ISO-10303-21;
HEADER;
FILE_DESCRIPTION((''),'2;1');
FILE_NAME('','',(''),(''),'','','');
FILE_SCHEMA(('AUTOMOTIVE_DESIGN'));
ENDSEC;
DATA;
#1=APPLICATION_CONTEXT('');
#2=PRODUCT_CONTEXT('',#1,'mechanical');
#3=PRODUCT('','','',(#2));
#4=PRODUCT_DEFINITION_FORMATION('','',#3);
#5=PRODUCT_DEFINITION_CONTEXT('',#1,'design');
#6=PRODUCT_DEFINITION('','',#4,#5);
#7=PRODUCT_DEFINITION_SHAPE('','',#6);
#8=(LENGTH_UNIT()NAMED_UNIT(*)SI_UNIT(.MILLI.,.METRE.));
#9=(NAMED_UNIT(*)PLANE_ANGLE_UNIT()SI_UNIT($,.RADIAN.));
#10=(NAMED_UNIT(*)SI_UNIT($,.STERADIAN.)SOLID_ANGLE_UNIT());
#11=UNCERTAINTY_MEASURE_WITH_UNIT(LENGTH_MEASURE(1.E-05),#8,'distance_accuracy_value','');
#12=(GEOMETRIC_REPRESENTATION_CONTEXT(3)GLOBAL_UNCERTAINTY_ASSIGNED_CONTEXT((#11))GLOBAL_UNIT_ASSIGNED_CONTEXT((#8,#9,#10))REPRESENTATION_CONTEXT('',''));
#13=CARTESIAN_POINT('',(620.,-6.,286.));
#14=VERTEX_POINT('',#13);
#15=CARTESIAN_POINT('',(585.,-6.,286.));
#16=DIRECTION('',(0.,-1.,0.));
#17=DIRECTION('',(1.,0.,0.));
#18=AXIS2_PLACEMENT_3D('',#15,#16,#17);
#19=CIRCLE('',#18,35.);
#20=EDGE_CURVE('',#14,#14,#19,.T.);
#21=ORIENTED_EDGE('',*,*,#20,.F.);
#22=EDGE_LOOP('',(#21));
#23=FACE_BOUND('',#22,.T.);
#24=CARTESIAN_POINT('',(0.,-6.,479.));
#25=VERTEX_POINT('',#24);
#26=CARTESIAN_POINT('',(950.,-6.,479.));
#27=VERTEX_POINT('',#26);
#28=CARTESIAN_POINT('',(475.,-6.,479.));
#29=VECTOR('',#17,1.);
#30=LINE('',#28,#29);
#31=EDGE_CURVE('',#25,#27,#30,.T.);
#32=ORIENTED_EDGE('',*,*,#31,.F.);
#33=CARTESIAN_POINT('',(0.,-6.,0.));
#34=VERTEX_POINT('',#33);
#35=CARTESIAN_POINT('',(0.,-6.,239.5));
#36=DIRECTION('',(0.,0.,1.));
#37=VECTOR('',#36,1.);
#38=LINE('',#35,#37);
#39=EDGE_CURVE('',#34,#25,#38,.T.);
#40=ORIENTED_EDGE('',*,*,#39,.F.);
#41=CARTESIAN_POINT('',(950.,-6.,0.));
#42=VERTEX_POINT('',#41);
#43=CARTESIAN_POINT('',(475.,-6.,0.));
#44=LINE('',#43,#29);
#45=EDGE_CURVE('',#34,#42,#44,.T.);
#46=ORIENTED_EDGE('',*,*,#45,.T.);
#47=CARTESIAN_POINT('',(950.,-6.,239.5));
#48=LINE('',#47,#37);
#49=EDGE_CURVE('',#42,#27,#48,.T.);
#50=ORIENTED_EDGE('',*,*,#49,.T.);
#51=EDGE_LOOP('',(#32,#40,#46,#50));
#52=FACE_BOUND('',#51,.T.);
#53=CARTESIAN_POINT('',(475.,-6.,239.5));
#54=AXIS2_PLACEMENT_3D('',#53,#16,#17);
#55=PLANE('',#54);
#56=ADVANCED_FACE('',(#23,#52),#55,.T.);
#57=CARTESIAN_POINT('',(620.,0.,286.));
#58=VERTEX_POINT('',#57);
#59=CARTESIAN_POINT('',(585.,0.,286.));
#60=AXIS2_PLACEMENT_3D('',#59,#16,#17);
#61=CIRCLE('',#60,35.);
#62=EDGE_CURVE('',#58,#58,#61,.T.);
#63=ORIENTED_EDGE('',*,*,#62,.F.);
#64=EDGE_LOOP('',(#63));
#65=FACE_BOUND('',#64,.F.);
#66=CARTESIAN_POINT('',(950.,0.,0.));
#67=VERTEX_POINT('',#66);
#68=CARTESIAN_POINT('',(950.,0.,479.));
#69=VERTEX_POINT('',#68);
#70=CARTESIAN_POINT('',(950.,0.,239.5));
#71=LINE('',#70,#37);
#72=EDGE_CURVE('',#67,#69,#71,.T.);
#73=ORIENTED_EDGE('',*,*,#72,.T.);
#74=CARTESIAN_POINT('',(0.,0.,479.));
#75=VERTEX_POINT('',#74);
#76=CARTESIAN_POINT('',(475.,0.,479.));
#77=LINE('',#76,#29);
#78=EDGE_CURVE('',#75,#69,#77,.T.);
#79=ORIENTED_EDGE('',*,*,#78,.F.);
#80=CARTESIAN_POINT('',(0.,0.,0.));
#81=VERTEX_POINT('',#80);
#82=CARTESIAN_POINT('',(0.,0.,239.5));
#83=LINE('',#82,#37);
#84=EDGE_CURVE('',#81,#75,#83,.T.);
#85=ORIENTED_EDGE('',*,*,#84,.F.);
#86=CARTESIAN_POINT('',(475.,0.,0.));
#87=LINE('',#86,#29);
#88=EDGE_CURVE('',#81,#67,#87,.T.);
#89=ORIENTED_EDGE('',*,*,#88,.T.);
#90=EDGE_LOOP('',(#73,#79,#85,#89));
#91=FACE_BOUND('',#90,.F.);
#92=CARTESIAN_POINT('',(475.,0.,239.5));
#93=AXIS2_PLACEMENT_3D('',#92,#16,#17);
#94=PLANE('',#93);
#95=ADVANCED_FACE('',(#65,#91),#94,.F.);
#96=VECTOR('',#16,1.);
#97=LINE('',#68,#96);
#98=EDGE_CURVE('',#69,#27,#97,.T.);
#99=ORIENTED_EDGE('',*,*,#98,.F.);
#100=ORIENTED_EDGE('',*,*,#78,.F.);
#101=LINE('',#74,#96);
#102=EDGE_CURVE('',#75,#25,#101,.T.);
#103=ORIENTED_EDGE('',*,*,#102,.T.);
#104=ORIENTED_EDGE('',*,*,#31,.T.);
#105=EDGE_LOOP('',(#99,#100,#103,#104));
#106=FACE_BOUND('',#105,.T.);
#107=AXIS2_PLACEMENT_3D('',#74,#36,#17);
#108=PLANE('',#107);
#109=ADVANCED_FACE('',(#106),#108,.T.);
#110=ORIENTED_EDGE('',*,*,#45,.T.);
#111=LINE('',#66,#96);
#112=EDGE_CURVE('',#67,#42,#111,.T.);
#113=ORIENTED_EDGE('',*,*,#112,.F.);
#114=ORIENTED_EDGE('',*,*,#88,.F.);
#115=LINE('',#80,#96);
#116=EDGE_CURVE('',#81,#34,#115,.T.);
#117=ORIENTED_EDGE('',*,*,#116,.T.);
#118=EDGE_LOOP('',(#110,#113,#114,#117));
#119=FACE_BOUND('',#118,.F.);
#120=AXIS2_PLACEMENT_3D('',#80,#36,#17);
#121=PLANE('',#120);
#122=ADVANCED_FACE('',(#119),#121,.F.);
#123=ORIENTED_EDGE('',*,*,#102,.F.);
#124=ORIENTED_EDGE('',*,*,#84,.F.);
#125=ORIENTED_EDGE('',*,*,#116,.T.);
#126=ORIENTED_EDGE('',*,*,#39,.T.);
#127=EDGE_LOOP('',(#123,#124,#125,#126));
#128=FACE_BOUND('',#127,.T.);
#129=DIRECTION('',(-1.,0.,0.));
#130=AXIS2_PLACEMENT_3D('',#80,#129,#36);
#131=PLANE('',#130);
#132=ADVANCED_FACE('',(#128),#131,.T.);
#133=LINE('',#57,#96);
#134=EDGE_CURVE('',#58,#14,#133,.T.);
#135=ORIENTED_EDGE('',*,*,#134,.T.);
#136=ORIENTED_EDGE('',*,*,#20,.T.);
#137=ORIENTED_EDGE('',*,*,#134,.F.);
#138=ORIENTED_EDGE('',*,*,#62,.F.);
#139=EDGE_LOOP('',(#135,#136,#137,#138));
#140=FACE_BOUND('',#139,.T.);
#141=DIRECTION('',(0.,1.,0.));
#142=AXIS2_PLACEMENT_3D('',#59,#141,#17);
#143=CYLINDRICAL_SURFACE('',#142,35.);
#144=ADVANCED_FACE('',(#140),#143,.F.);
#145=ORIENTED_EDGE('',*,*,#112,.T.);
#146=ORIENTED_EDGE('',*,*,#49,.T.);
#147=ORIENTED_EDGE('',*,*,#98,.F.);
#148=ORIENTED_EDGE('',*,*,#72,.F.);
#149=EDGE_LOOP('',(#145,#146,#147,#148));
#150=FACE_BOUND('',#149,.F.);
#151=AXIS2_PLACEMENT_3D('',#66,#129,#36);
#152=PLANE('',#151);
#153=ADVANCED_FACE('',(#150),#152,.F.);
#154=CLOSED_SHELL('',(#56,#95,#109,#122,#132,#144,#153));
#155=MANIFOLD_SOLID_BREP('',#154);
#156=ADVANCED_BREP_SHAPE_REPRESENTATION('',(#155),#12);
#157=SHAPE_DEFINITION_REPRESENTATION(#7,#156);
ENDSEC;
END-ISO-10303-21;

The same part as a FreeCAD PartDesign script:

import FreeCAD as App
import Part
import Sketcher
from FreeCAD import Vector


def add_polygon(sketch, points):
    """Adds a closed chain of lines whose ends are joined by coincident constraints."""
    first, n = sketch.GeometryCount, len(points)
    for a, b in zip(points, points[1:] + points[:1]):
        sketch.addGeometry(Part.LineSegment(App.Vector(*a, 0), App.Vector(*b, 0)), False)
    for i in range(n):
        sketch.addConstraint(Sketcher.Constraint("Coincident", first + i, 2, first + (i + 1) % n, 1))

doc = App.newDocument("Part")
params = doc.addObject("Spreadsheet::Sheet", "Params")
for row, (alias, value) in enumerate([
    ("sketch1_width", "950 mm"),
    ("sketch1_height", "479 mm"),
    ("pad1_length", "6 mm"),
    ("sketch2_diameter", "70 mm"),
], start=1):
    params.set(f"A{row}", alias)
    params.set(f"B{row}", "=" + value)
    params.setAlias(f"B{row}", alias)

body = doc.addObject("PartDesign::Body", "Body")

# Sketch on XZ plane
sketch1 = doc.addObject("Sketcher::SketchObject", "Sketch")
body.addObject(sketch1)
sketch1.AttachmentSupport = (doc.XZ_Plane, [""])
sketch1.MapMode = "FlatFace"
add_polygon(sketch1, [(0, 479), (0, 0), (950, 0), (950, 479)])  # lines 0-3
sketch1.addConstraint(Sketcher.Constraint("Vertical", 0))
sketch1.addConstraint(Sketcher.Constraint("Horizontal", 1))
sketch1.addConstraint(Sketcher.Constraint("Vertical", 2))
sketch1.addConstraint(Sketcher.Constraint("Horizontal", 3))
sketch1.addConstraint(Sketcher.Constraint("Coincident", 0, 2, -1, 1))
sketch1.addConstraint(Sketcher.Constraint("DistanceX", 1, 1, 1, 2, 950.0))
sketch1.addConstraint(Sketcher.Constraint("DistanceY", 0, 2, 0, 1, 479.0))
sketch1.setExpression("Constraints[9]", "Params.sketch1_width")
sketch1.setExpression("Constraints[10]", "Params.sketch1_height")
pad1 = doc.addObject("PartDesign::Pad", "Pad")
body.addObject(pad1)
pad1.Profile = sketch1
pad1.setExpression("Length", "Params.pad1_length")

# Sketch on XZ plane
sketch2 = doc.addObject("Sketcher::SketchObject", "Sketch001")
body.addObject(sketch2)
sketch2.AttachmentSupport = (doc.XZ_Plane, [""])
sketch2.MapMode = "FlatFace"
sketch2.addGeometry(Part.Circle(Vector(585, 286, 0), Vector(0, 0, 1), 35), False)
sketch2.addConstraint(Sketcher.Constraint("Diameter", 0, 70.0))
sketch2.addConstraint(Sketcher.Constraint("DistanceX", -1, 1, 0, 3, 585.0))
sketch2.addConstraint(Sketcher.Constraint("DistanceY", -1, 1, 0, 3, 286.0))
sketch2.setExpression("Constraints[0]", "Params.sketch2_diameter")
pocket1 = doc.addObject("PartDesign::Pocket", "Pocket")
body.addObject(pocket1)
pocket1.Profile = sketch2
pocket1.Type = "ThroughAll"
pocket1.Reversed = True

doc.recompute()
